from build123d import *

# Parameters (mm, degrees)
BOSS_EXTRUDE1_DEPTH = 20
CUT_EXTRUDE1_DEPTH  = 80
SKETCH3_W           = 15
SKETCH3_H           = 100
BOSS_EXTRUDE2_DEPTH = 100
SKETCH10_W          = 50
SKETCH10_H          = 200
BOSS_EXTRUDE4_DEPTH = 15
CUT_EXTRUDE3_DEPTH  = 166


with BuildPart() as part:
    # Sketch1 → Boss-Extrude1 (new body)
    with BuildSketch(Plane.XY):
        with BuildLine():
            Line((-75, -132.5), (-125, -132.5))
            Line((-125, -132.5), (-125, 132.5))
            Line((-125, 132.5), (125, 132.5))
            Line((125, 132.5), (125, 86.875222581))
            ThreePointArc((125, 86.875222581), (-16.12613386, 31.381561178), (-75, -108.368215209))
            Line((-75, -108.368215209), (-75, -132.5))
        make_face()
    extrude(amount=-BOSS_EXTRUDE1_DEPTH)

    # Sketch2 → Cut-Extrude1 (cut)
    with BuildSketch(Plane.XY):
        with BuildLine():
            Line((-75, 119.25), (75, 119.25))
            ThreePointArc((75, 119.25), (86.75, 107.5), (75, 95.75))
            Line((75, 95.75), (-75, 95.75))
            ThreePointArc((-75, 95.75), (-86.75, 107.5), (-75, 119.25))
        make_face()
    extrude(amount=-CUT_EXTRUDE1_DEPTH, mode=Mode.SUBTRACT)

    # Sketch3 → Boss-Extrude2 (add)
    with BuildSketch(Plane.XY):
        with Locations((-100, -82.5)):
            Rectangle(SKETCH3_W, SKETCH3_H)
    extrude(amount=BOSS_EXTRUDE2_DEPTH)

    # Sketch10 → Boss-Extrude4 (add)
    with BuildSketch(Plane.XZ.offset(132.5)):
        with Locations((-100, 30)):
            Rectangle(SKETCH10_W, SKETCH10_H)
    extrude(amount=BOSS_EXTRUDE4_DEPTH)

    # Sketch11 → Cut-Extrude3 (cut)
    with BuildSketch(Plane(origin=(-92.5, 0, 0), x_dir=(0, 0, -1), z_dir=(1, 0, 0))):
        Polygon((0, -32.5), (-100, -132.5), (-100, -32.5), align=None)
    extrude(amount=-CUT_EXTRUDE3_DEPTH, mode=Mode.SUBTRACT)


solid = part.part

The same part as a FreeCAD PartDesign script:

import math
import FreeCAD as App
import Part
import Sketcher
from FreeCAD import Vector
Q = App.Units.Quantity

doc = App.newDocument("Part")
params = doc.addObject("Spreadsheet::Sheet", "Params")
for row, (alias, value) in enumerate([
    ("sketch1_radius", "195.3 mm"),
    ("sketch1_width", "50 mm"),
    ("sketch1_width2", "250 mm"),
    ("sketch1_height", "265 mm"),
    ("pad1_length", "20 mm"),
    ("sketch2_width", "150 mm"),
    ("sketch2_radius", "11.75 mm"),
    ("pocket1_length", "80 mm"),
    ("sketch3_width", "15 mm"),
    ("sketch3_height", "100 mm"),
    ("pad2_length", "100 mm"),
    ("sketch4_width", "50 mm"),
    ("sketch4_height", "200 mm"),
    ("pad3_length", "15 mm"),
    ("sketch5_width", "100 mm"),
    ("pocket2_length", "166 mm"),
], start=1):
    params.set(f"A{row}", alias)
    params.set(f"B{row}", "=" + value)
    params.setAlias(f"B{row}", alias)

body = doc.addObject("PartDesign::Body", "Body")

# Sketch on XY plane
sketch1 = doc.addObject("Sketcher::SketchObject", "Sketch")
body.addObject(sketch1)
sketch1.AttachmentSupport = (doc.XY_Plane, [""])
sketch1.MapMode = "FlatFace"
sketch1.addGeometry([
    Part.LineSegment(Vector(-125, -132.5, 0), Vector(-75, -132.5, 0)),  # 0
    Part.LineSegment(Vector(-75, -132.5, 0), Vector(-75, -108.368215, 0)),  # 1
    Part.ArcOfCircle(Part.Circle(Vector(120.3, -108.368215, 0), Vector(0, 0, 1), 195.3), math.radians(88.621013), math.radians(180)),  # 2
    Part.LineSegment(Vector(125, 86.875223, 0), Vector(125, 132.5, 0)),  # 3
    Part.LineSegment(Vector(125, 132.5, 0), Vector(-125, 132.5, 0)),  # 4
    Part.LineSegment(Vector(-125, 132.5, 0), Vector(-125, -132.5, 0)),  # 5
], False)
sketch1.addConstraint([
    Sketcher.Constraint("Coincident", 0, 2, 1, 1),
    Sketcher.Constraint("Tangent", 1, 2, 2, 2),
    Sketcher.Constraint("Coincident", 2, 1, 3, 1),
    Sketcher.Constraint("Coincident", 3, 2, 4, 1),
    Sketcher.Constraint("Coincident", 4, 2, 5, 1),
    Sketcher.Constraint("Coincident", 5, 2, 0, 1),
    Sketcher.Constraint("Horizontal", 0),
    Sketcher.Constraint("Vertical", 1),
    Sketcher.Constraint("Vertical", 3),
    Sketcher.Constraint("Horizontal", 4),
    Sketcher.Constraint("Vertical", 5),
    Sketcher.Constraint("Symmetric", 3, 2, 5, 2, -1, 1),
    Sketcher.Constraint("Radius", 2, Q("195.3 mm")),
    Sketcher.Constraint("DistanceX", 0, 1, 0, 2, Q("50 mm")),
    Sketcher.Constraint("DistanceX", 4, 2, 4, 1, Q("250 mm")),
    Sketcher.Constraint("DistanceY", 5, 2, 5, 1, Q("265 mm")),
    Sketcher.Constraint("DistanceY", 1, 1, 1, 2, Q("24.131785 mm")),
])
sketch1.setExpression("Constraints[12]", "Params.sketch1_radius")
sketch1.setExpression("Constraints[13]", "Params.sketch1_width")
sketch1.setExpression("Constraints[14]", "Params.sketch1_width2")
sketch1.setExpression("Constraints[15]", "Params.sketch1_height")
pad1 = doc.addObject("PartDesign::Pad", "Pad")
body.addObject(pad1)
pad1.Profile = sketch1
pad1.setExpression("Length", "Params.pad1_length")
pad1.Reversed = True

# Sketch on XY plane
sketch2 = doc.addObject("Sketcher::SketchObject", "Sketch001")
body.addObject(sketch2)
sketch2.AttachmentSupport = (doc.XY_Plane, [""])
sketch2.MapMode = "FlatFace"
sketch2.addGeometry([
    Part.LineSegment(Vector(75, 119.25, 0), Vector(-75, 119.25, 0)),
    Part.ArcOfCircle(Part.Circle(Vector(-75, 107.5, 0), Vector(0, 0, 1), 11.75), math.radians(90), math.radians(270)),
    Part.LineSegment(Vector(-75, 95.75, 0), Vector(75, 95.75, 0)),
    Part.ArcOfCircle(Part.Circle(Vector(75, 107.5, 0), Vector(0, 0, 1), 11.75), math.radians(-90), math.radians(90)),
], False)
sketch2.addConstraint([
    Sketcher.Constraint("Tangent", 0, 2, 1, 1),
    Sketcher.Constraint("Tangent", 1, 2, 2, 1),
    Sketcher.Constraint("Tangent", 2, 2, 3, 1),
    Sketcher.Constraint("Tangent", 3, 2, 0, 1),
    Sketcher.Constraint("Horizontal", 0),
    Sketcher.Constraint("Horizontal", 2),
    Sketcher.Constraint("DistanceX", 0, 2, 0, 1, Q("150 mm")),
    Sketcher.Constraint("Radius", 1, Q("11.75 mm")),
    Sketcher.Constraint("DistanceX", 1, 3, -1, 1, Q("75 mm")),
    Sketcher.Constraint("DistanceY", -1, 1, 1, 3, Q("107.5 mm")),
])
sketch2.setExpression("Constraints[6]", "Params.sketch2_width")
sketch2.setExpression("Constraints[7]", "Params.sketch2_radius")
pocket1 = doc.addObject("PartDesign::Pocket", "Pocket")
body.addObject(pocket1)
pocket1.Profile = sketch2
pocket1.setExpression("Length", "Params.pocket1_length")

# Sketch on XY plane
sketch3 = doc.addObject("Sketcher::SketchObject", "Sketch002")
body.addObject(sketch3)
sketch3.AttachmentSupport = (doc.XY_Plane, [""])
sketch3.MapMode = "FlatFace"
sketch3.addGeometry([
    Part.LineSegment(Vector(-107.5, -32.5, 0), Vector(-107.5, -132.5, 0)),
    Part.LineSegment(Vector(-107.5, -132.5, 0), Vector(-92.5, -132.5, 0)),
    Part.LineSegment(Vector(-92.5, -132.5, 0), Vector(-92.5, -32.5, 0)),
    Part.LineSegment(Vector(-92.5, -32.5, 0), Vector(-107.5, -32.5, 0)),
], False)
sketch3.addConstraint([
    Sketcher.Constraint("Coincident", 0, 2, 1, 1),
    Sketcher.Constraint("Coincident", 1, 2, 2, 1),
    Sketcher.Constraint("Coincident", 2, 2, 3, 1),
    Sketcher.Constraint("Coincident", 3, 2, 0, 1),
    Sketcher.Constraint("Vertical", 0),
    Sketcher.Constraint("Horizontal", 1),
    Sketcher.Constraint("Vertical", 2),
    Sketcher.Constraint("Horizontal", 3),
    Sketcher.Constraint("DistanceX", 1, 1, 1, 2, Q("15 mm")),
    Sketcher.Constraint("DistanceY", 0, 2, 0, 1, Q("100 mm")),
    Sketcher.Constraint("DistanceX", 0, 2, -1, 1, Q("107.5 mm")),
    Sketcher.Constraint("DistanceY", 0, 2, -1, 1, Q("132.5 mm")),
])
sketch3.setExpression("Constraints[8]", "Params.sketch3_width")
sketch3.setExpression("Constraints[9]", "Params.sketch3_height")
pad2 = doc.addObject("PartDesign::Pad", "Pad001")
body.addObject(pad2)
pad2.Profile = sketch3
pad2.setExpression("Length", "Params.pad2_length")

# Sketch on XZ plane
sketch4 = doc.addObject("Sketcher::SketchObject", "Sketch003")
body.addObject(sketch4)
sketch4.AttachmentSupport = (doc.XZ_Plane, [""])
sketch4.MapMode = "FlatFace"
sketch4.AttachmentOffset = App.Placement(Vector(0, 0, 132.5), App.Rotation())
sketch4.addGeometry([
    Part.LineSegment(Vector(-125, 130, 0), Vector(-125, -70, 0)),
    Part.LineSegment(Vector(-125, -70, 0), Vector(-75, -70, 0)),
    Part.LineSegment(Vector(-75, -70, 0), Vector(-75, 130, 0)),
    Part.LineSegment(Vector(-75, 130, 0), Vector(-125, 130, 0)),
], False)
sketch4.addConstraint([
    Sketcher.Constraint("Coincident", 0, 2, 1, 1),
    Sketcher.Constraint("Coincident", 1, 2, 2, 1),
    Sketcher.Constraint("Coincident", 2, 2, 3, 1),
    Sketcher.Constraint("Coincident", 3, 2, 0, 1),
    Sketcher.Constraint("Vertical", 0),
    Sketcher.Constraint("Horizontal", 1),
    Sketcher.Constraint("Vertical", 2),
    Sketcher.Constraint("Horizontal", 3),
    Sketcher.Constraint("DistanceX", 1, 1, 1, 2, Q("50 mm")),
    Sketcher.Constraint("DistanceY", 0, 2, 0, 1, Q("200 mm")),
    Sketcher.Constraint("DistanceX", 0, 2, -1, 1, Q("125 mm")),
    Sketcher.Constraint("DistanceY", 0, 2, -1, 1, Q("70 mm")),
])
sketch4.setExpression("Constraints[8]", "Params.sketch4_width")
sketch4.setExpression("Constraints[9]", "Params.sketch4_height")
pad3 = doc.addObject("PartDesign::Pad", "Pad002")
body.addObject(pad3)
pad3.Profile = sketch4
pad3.setExpression("Length", "Params.pad3_length")

# Sketch on YZ plane
sketch5 = doc.addObject("Sketcher::SketchObject", "Sketch004")
body.addObject(sketch5)
sketch5.AttachmentSupport = (doc.YZ_Plane, [""])
sketch5.MapMode = "FlatFace"
sketch5.AttachmentOffset = App.Placement(Vector(0, 0, -92.5), App.Rotation())
sketch5.addGeometry([
    Part.LineSegment(Vector(-132.5, 100, 0), Vector(-32.5, 0, 0)),
    Part.LineSegment(Vector(-32.5, 0, 0), Vector(-32.5, 100, 0)),
    Part.LineSegment(Vector(-32.5, 100, 0), Vector(-132.5, 100, 0)),
], False)
sketch5.addConstraint([
    Sketcher.Constraint("Coincident", 0, 2, 1, 1),
    Sketcher.Constraint("Coincident", 1, 2, 2, 1),
    Sketcher.Constraint("Coincident", 2, 2, 0, 1),
    Sketcher.Constraint("Vertical", 1),
    Sketcher.Constraint("Horizontal", 2),
    Sketcher.Constraint("PointOnObject", 0, 2, -1),
    Sketcher.Constraint("Equal", 2, 1),
    Sketcher.Constraint("DistanceX", 2, 2, 2, 1, Q("100 mm")),
    Sketcher.Constraint("DistanceX", 0, 2, -1, 1, Q("32.5 mm")),
])
sketch5.setExpression("Constraints[7]", "Params.sketch5_width")
pocket2 = doc.addObject("PartDesign::Pocket", "Pocket001")
body.addObject(pocket2)
pocket2.Profile = sketch5
pocket2.setExpression("Length", "Params.pocket2_length")

doc.recompute()
